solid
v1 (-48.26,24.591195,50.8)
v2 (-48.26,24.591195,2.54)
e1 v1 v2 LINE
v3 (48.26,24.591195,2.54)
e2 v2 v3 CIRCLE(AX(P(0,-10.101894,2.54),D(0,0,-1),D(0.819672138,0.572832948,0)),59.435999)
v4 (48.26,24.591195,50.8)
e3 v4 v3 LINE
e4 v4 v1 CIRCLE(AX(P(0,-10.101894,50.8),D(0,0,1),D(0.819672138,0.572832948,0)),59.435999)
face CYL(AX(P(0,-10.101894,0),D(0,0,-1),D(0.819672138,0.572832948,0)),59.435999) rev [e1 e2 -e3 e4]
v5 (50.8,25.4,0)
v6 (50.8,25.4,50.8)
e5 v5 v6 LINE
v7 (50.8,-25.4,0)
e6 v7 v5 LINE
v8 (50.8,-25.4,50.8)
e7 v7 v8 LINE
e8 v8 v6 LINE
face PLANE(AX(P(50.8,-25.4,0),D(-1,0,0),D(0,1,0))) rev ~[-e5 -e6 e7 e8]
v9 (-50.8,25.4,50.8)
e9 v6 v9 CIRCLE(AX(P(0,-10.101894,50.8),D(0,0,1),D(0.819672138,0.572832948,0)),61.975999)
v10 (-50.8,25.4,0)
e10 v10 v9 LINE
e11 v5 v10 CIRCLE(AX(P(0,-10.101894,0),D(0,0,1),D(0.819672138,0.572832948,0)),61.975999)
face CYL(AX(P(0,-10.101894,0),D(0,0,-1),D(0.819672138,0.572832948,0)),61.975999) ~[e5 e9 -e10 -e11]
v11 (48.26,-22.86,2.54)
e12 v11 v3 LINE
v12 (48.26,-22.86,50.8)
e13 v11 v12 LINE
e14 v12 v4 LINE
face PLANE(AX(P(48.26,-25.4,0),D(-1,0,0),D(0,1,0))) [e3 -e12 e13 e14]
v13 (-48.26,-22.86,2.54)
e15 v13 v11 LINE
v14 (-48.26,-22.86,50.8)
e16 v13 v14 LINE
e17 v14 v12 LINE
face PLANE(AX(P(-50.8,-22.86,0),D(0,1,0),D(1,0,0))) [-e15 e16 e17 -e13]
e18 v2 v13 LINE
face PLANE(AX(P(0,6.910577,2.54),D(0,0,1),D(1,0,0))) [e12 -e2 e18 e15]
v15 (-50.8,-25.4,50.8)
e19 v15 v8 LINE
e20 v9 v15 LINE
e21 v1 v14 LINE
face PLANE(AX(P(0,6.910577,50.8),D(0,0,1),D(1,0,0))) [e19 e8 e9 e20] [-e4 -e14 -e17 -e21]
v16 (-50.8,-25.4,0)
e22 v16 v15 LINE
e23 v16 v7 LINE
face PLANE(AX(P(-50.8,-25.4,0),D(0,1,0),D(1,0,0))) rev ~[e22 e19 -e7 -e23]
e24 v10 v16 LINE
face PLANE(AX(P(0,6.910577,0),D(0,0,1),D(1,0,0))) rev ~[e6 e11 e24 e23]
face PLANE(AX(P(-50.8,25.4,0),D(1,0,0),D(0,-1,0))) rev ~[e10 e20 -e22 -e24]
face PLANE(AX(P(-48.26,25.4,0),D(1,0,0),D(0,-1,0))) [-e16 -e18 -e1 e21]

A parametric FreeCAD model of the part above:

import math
import FreeCAD as App
import Part
import Sketcher
Q = App.Units.Quantity


def faces_at(feature, points):
    """Names of the faces that lie closest to the given points."""
    faces = feature.Shape.Faces
    near = lambda p: min(range(len(faces)), key=lambda i: faces[i].distToShape(Part.Vertex(*p))[0])
    return sorted({f"Face{near(p) + 1}" for p in points})

doc = App.newDocument("Part")
body = doc.addObject("PartDesign::Body", "Body")

sketch1 = body.newObject("Sketcher::SketchObject", "Sketch")
sketch1.AttachmentSupport = (doc.getObject("XY_Plane"), [""])
sketch1.MapMode = "FlatFace"
sketch1.addGeometry(Part.LineSegment(App.Vector(-51, 25, 0), App.Vector(-51, -25, 0)), False)
sketch1.addGeometry(Part.LineSegment(App.Vector(-51, -25, 0), App.Vector(51, -25, 0)), False)
sketch1.addGeometry(Part.LineSegment(App.Vector(51, -25, 0), App.Vector(51, 25, 0)), False)
sketch1.addGeometry(Part.ArcOfCircle(Part.Circle(App.Vector(0, -10, 0), App.Vector(0, 0, 1), 62), math.radians(35), math.radians(145)), False)
sketch1.addConstraint(Sketcher.Constraint("Coincident", 0, 2, 1, 1))
sketch1.addConstraint(Sketcher.Constraint("Coincident", 1, 2, 2, 1))
sketch1.addConstraint(Sketcher.Constraint("Coincident", 2, 2, 3, 1))
sketch1.addConstraint(Sketcher.Constraint("Coincident", 3, 2, 0, 1))
sketch1.addConstraint(Sketcher.Constraint("Vertical", 0))
sketch1.addConstraint(Sketcher.Constraint("Horizontal", 1))
sketch1.addConstraint(Sketcher.Constraint("Vertical", 2))
sketch1.addConstraint(Sketcher.Constraint("Symmetric", 0, 2, 2, 2, -1, 1))
sketch1.addConstraint(Sketcher.Constraint("PointOnObject", 3, 3, -2))
sketch1.addConstraint(Sketcher.Constraint("DistanceX", 1, 1, 1, 2, Q("4 in")))
sketch1.addConstraint(Sketcher.Constraint("DistanceY", 0, 2, 0, 1, Q("2 in")))
sketch1.addConstraint(Sketcher.Constraint("Radius", 3, Q("2.44 in")))
pad1 = body.newObject("PartDesign::Pad", "Pad")
pad1.Profile = sketch1
pad1.Length = Q("2 in")
doc.recompute()

thickness = body.newObject("PartDesign::Thickness", "Thickness")
thickness.Base = (pad1, faces_at(pad1, [(0, 13.237, 50.8)]))
thickness.Value = Q("0.1 in")
thickness.Reversed = True
thickness.Join = "Arc"

doc.recompute()
